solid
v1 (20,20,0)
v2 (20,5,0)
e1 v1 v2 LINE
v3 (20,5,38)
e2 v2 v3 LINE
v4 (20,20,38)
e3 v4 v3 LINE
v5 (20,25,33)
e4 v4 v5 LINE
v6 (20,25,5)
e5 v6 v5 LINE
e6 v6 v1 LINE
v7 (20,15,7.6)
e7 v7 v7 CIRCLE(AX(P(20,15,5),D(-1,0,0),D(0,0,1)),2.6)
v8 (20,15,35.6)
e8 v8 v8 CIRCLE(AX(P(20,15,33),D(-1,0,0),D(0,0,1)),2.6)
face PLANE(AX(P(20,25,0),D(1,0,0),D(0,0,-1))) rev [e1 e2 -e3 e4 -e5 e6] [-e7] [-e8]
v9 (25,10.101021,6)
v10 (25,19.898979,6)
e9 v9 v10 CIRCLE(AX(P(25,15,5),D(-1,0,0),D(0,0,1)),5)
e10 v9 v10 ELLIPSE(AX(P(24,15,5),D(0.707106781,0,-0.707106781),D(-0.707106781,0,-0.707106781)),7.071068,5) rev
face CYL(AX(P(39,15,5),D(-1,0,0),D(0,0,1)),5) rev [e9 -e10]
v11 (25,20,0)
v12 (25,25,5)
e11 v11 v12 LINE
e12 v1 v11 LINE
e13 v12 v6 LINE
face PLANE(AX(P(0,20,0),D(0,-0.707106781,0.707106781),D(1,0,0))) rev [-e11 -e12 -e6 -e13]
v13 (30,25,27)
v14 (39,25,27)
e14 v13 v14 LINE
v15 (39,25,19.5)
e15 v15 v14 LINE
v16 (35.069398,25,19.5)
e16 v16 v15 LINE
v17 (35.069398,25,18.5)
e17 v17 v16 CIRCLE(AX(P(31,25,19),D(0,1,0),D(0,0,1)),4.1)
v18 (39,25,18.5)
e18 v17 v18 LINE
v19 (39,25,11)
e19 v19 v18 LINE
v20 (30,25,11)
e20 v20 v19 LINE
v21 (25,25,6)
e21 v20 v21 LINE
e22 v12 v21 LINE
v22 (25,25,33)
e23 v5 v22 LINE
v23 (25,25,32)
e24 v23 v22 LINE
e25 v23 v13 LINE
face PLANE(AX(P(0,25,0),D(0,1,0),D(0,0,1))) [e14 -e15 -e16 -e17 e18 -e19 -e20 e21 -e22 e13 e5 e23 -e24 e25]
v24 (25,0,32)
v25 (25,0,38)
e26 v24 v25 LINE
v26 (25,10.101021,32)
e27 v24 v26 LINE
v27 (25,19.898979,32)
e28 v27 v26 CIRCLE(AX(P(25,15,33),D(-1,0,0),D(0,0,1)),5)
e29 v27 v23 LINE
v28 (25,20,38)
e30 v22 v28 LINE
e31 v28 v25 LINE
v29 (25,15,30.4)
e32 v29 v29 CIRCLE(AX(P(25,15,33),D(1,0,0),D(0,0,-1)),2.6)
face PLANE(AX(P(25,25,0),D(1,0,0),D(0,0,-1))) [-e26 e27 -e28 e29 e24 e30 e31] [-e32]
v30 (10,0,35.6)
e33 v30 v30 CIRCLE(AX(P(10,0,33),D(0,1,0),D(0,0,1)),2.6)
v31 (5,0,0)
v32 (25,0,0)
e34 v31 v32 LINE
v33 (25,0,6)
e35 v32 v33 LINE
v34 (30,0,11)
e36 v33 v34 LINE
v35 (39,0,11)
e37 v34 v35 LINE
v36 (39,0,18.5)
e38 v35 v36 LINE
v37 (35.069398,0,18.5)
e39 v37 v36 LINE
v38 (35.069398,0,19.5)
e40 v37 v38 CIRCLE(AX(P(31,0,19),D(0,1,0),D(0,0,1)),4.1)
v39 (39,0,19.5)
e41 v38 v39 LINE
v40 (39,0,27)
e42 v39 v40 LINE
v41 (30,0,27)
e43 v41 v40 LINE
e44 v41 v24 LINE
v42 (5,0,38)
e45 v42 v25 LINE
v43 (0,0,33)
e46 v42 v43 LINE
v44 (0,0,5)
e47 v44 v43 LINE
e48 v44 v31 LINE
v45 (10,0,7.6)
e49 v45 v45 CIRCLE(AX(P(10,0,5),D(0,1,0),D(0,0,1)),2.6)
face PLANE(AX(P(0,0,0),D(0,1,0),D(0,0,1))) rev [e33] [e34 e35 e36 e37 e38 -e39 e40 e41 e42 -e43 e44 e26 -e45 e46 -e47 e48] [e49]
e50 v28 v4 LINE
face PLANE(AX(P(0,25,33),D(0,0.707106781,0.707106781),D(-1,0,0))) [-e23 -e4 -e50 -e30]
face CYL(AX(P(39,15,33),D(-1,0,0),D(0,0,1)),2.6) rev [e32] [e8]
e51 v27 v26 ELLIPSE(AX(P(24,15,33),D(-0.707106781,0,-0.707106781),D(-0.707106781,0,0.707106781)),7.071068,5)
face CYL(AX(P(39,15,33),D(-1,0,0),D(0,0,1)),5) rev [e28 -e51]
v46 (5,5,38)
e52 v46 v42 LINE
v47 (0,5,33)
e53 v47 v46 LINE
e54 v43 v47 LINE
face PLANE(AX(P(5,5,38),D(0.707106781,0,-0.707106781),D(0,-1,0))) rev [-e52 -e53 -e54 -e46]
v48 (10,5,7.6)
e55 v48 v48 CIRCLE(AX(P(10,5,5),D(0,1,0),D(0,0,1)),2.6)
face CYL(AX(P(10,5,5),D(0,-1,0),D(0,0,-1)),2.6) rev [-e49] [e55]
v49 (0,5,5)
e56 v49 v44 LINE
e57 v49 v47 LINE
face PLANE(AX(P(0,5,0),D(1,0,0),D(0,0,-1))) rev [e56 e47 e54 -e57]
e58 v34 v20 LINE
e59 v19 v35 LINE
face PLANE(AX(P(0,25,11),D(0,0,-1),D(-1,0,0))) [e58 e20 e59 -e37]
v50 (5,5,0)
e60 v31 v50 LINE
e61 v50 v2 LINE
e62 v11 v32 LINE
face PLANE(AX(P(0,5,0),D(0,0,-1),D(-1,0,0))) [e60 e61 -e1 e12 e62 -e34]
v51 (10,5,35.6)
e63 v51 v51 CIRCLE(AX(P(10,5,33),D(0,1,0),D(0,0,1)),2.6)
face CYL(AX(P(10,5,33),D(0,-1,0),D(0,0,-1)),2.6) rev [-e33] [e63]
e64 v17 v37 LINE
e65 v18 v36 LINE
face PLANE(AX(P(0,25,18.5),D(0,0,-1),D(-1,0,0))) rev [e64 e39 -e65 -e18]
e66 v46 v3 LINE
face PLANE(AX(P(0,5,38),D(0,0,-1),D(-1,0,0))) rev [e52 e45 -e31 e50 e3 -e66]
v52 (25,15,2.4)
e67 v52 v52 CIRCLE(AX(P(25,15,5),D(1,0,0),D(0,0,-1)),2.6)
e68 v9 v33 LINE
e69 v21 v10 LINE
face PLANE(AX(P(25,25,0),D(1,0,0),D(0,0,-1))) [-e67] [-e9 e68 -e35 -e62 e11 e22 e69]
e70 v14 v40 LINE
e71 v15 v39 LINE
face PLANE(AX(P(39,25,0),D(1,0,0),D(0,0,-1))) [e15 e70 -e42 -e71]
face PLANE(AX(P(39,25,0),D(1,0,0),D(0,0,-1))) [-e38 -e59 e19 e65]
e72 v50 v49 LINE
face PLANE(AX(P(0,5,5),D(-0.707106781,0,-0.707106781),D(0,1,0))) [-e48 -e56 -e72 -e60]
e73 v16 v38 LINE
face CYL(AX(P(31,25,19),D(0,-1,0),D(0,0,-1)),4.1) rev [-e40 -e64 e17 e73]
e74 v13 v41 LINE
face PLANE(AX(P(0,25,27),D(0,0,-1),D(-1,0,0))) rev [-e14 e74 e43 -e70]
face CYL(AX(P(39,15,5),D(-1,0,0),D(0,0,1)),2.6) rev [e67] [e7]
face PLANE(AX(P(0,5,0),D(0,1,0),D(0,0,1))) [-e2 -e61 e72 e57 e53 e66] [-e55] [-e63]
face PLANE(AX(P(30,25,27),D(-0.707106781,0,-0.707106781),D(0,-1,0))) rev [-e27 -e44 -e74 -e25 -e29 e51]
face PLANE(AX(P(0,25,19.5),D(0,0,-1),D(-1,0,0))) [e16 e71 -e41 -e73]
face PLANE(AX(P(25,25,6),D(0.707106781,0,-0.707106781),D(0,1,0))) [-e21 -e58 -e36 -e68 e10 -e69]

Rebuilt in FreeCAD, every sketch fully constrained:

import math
import FreeCAD as App
import Part
import Sketcher


def edges_at(feature, points):
    """Names of the edges that pass closest to the given points."""
    edges = feature.Shape.Edges
    near = lambda p: min(range(len(edges)), key=lambda i: edges[i].distToShape(Part.Vertex(*p))[0])
    return sorted({f"Edge{near(p) + 1}" for p in points})


def add_polygon(sketch, points):
    """Adds a closed chain of lines whose ends are joined by coincident constraints."""
    first, n = sketch.GeometryCount, len(points)
    for a, b in zip(points, points[1:] + points[:1]):
        sketch.addGeometry(Part.LineSegment(App.Vector(*a, 0), App.Vector(*b, 0)), False)
    for i in range(n):
        sketch.addConstraint(Sketcher.Constraint("Coincident", first + i, 2, first + (i + 1) % n, 1))

doc = App.newDocument("Part")
params = doc.addObject("Spreadsheet::Sheet", "Params")
for row, (alias, value) in enumerate([
    ("sketch1_diameter", "5.2 mm"),
    ("sketch1_width", "20 mm"),
    ("sketch1_height", "38 mm"),
    ("pad1_length", "5 mm"),
    ("sketch2_radius", "4.1 mm"),
    ("sketch2_width", "5 mm"),
    ("sketch2_width2", "14 mm"),
    ("sketch2_height", "38 mm"),
    ("sketch2_height2", "11 mm"),
    ("pad2_length", "25 mm"),
    ("chamfer_size", "5 mm"),
    ("sketch3_diameter", "5.2 mm"),
    ("sketch4_diameter", "10 mm"),
    ("chamfer2_size", "5 mm"),
    ("chamfer3_size", "5 mm"),
], start=1):
    params.set(f"A{row}", alias)
    params.set(f"B{row}", "=" + value)
    params.setAlias(f"B{row}", alias)

body = doc.addObject("PartDesign::Body", "Body")

sketch1 = doc.addObject("Sketcher::SketchObject", "Sketch")
body.addObject(sketch1)
sketch1.AttachmentSupport = (doc.XZ_Plane, [""])
sketch1.MapMode = "FlatFace"
add_polygon(sketch1, [(0, 0), (0, 38), (20, 38), (20, 0)])
sketch1.addGeometry(Part.Circle(App.Vector(10, 33, 0), App.Vector(0, 0, 1), 2.6), False)
sketch1.addGeometry(Part.Circle(App.Vector(10, 5, 0), App.Vector(0, 0, 1), 2.6), False)
sketch1.addConstraint([
    Sketcher.Constraint("Vertical", 0),
    Sketcher.Constraint("Horizontal", 1),
    Sketcher.Constraint("Vertical", 2),
    Sketcher.Constraint("Horizontal", 3),
    Sketcher.Constraint("Coincident", 3, 2, -1, 1),
    Sketcher.Constraint("Equal", 4, 5),
    Sketcher.Constraint("Vertical", 4, 3, 5, 3),
    Sketcher.Constraint("Diameter", 4, 5.2),
    Sketcher.Constraint("DistanceX", 1, 1, 1, 2, 20.0),
    Sketcher.Constraint("DistanceY", 0, 1, 0, 2, 38.0),
    Sketcher.Constraint("DistanceX", -1, 1, 4, 3, 10.0),
    Sketcher.Constraint("DistanceY", -1, 1, 4, 3, 33.0),
    Sketcher.Constraint("DistanceY", -1, 1, 5, 3, 5.0),
])
sketch1.setExpression("Constraints[11]", "Params.sketch1_diameter")
sketch1.setExpression("Constraints[12]", "Params.sketch1_width")
sketch1.setExpression("Constraints[13]", "Params.sketch1_height")
pad1 = doc.addObject("PartDesign::Pad", "Pad")
body.addObject(pad1)
pad1.Profile = sketch1
pad1.setExpression("Length", "Params.pad1_length")
pad1.Reversed = True

sketch2 = doc.addObject("Sketcher::SketchObject", "Sketch001")
body.addObject(sketch2)
sketch2.AttachmentSupport = (doc.XZ_Plane, [""])
sketch2.MapMode = "FlatFace"
sketch2.addGeometry([
    Part.LineSegment(App.Vector(20, 0, 0), App.Vector(20, 38, 0)),
    Part.LineSegment(App.Vector(20, 38, 0), App.Vector(25, 38, 0)),
    Part.LineSegment(App.Vector(25, 38, 0), App.Vector(25, 27, 0)),
    Part.LineSegment(App.Vector(25, 27, 0), App.Vector(39, 27, 0)),
    Part.LineSegment(App.Vector(39, 27, 0), App.Vector(39, 19.5, 0)),
    Part.LineSegment(App.Vector(39, 19.5, 0), App.Vector(35.1, 19.5, 0)),
    Part.ArcOfCircle(Part.Circle(App.Vector(31, 19, 0), App.Vector(0, 0, 1), 4.1), math.radians(7), math.radians(353)),
    Part.LineSegment(App.Vector(35.1, 18.5, 0), App.Vector(39, 18.5, 0)),
    Part.LineSegment(App.Vector(39, 18.5, 0), App.Vector(39, 11, 0)),
    Part.LineSegment(App.Vector(39, 11, 0), App.Vector(25, 11, 0)),
    Part.LineSegment(App.Vector(25, 11, 0), App.Vector(25, 0, 0)),
    Part.LineSegment(App.Vector(25, 0, 0), App.Vector(20, 0, 0)),
], False)
sketch2.addConstraint([
    Sketcher.Constraint("Coincident", 0, 2, 1, 1),
    Sketcher.Constraint("Coincident", 1, 2, 2, 1),
    Sketcher.Constraint("Coincident", 2, 2, 3, 1),
    Sketcher.Constraint("Coincident", 3, 2, 4, 1),
    Sketcher.Constraint("Coincident", 4, 2, 5, 1),
    Sketcher.Constraint("Coincident", 5, 2, 6, 1),
    Sketcher.Constraint("Coincident", 6, 2, 7, 1),
    Sketcher.Constraint("Coincident", 7, 2, 8, 1),
    Sketcher.Constraint("Coincident", 8, 2, 9, 1),
    Sketcher.Constraint("Coincident", 9, 2, 10, 1),
    Sketcher.Constraint("Coincident", 10, 2, 11, 1),
    Sketcher.Constraint("Coincident", 11, 2, 0, 1),
    Sketcher.Constraint("Vertical", 0),
    Sketcher.Constraint("Horizontal", 1),
    Sketcher.Constraint("Vertical", 2),
    Sketcher.Constraint("Horizontal", 3),
    Sketcher.Constraint("Vertical", 4),
    Sketcher.Constraint("Horizontal", 5),
    Sketcher.Constraint("Horizontal", 7),
    Sketcher.Constraint("Vertical", 8),
    Sketcher.Constraint("Horizontal", 9),
    Sketcher.Constraint("Vertical", 10),
    Sketcher.Constraint("Horizontal", 11),
    Sketcher.Constraint("PointOnObject", 10, 2, -1),
    Sketcher.Constraint("Vertical", 5, 2, 6, 2),
    Sketcher.Constraint("Vertical", 4, 2, 7, 2),
    Sketcher.Constraint("Vertical", 2, 2, 9, 2),
    Sketcher.Constraint("Equal", 4, 8),
    Sketcher.Constraint("Equal", 2, 10),
    Sketcher.Constraint("Radius", 6, 4.1),
    Sketcher.Constraint("DistanceX", 1, 1, 1, 2, 5.0),
    Sketcher.Constraint("DistanceX", 3, 1, 3, 2, 14.0),
    Sketcher.Constraint("DistanceY", 0, 1, 0, 2, 38.0),
    Sketcher.Constraint("DistanceY", 2, 2, 2, 1, 11.0),
    Sketcher.Constraint("DistanceY", 4, 2, 4, 1, 7.5),
    Sketcher.Constraint("DistanceX", -1, 1, 6, 3, 31.0),
    Sketcher.Constraint("DistanceX", -1, 1, 0, 2, 20.0),
])
sketch2.setExpression("Constraints[29]", "Params.sketch2_radius")
sketch2.setExpression("Constraints[30]", "Params.sketch2_width")
sketch2.setExpression("Constraints[31]", "Params.sketch2_width2")
sketch2.setExpression("Constraints[32]", "Params.sketch2_height")
sketch2.setExpression("Constraints[33]", "Params.sketch2_height2")
pad2 = doc.addObject("PartDesign::Pad", "Pad001")
body.addObject(pad2)
pad2.Profile = sketch2
pad2.setExpression("Length", "Params.pad2_length")
pad2.Reversed = True
doc.recompute()

chamfer = doc.addObject("PartDesign::Chamfer", "Chamfer")
body.addObject(chamfer)
chamfer.Base = (pad2, edges_at(pad2, [(25, 12.5, 11), (25, 12.5, 27)]))
chamfer.setExpression("Size", "Params.chamfer_size")

sketch3 = doc.addObject("Sketcher::SketchObject", "Sketch002")
body.addObject(sketch3)
sketch3.AttachmentSupport = (doc.YZ_Plane, [""])
sketch3.MapMode = "FlatFace"
sketch3.AttachmentOffset = App.Placement(App.Vector(0, 0, 20), App.Rotation())
sketch3.addGeometry([
    Part.Circle(App.Vector(15, 5, 0), App.Vector(0, 0, 1), 2.6),
    Part.Circle(App.Vector(15, 33, 0), App.Vector(0, 0, 1), 2.6),
], False)
sketch3.addConstraint([
    Sketcher.Constraint("Equal", 0, 1),
    Sketcher.Constraint("Vertical", 0, 3, 1, 3),
    Sketcher.Constraint("Diameter", 0, 5.2),
    Sketcher.Constraint("DistanceX", -1, 1, 0, 3, 15.0),
    Sketcher.Constraint("DistanceY", -1, 1, 0, 3, 5.0),
    Sketcher.Constraint("DistanceY", -1, 1, 1, 3, 33.0),
])
sketch3.setExpression("Constraints[2]", "Params.sketch3_diameter")
pocket1 = doc.addObject("PartDesign::Pocket", "Pocket")
body.addObject(pocket1)
pocket1.Profile = sketch3
pocket1.Type = "ThroughAll"
pocket1.Reversed = True

sketch4 = doc.addObject("Sketcher::SketchObject", "Sketch003")
body.addObject(sketch4)
sketch4.AttachmentSupport = (doc.YZ_Plane, [""])
sketch4.MapMode = "FlatFace"
sketch4.AttachmentOffset = App.Placement(App.Vector(0, 0, 25), App.Rotation())
sketch4.addGeometry([
    Part.Circle(App.Vector(15, 5, 0), App.Vector(0, 0, 1), 5),
    Part.Circle(App.Vector(15, 33, 0), App.Vector(0, 0, 1), 5),
], False)
sketch4.addConstraint([
    Sketcher.Constraint("Equal", 0, 1),
    Sketcher.Constraint("Vertical", 0, 3, 1, 3),
    Sketcher.Constraint("Diameter", 0, 10.0),
    Sketcher.Constraint("DistanceX", -1, 1, 0, 3, 15.0),
    Sketcher.Constraint("DistanceY", -1, 1, 0, 3, 5.0),
    Sketcher.Constraint("DistanceY", -1, 1, 1, 3, 33.0),
])
sketch4.setExpression("Constraints[2]", "Params.sketch4_diameter")
pocket2 = doc.addObject("PartDesign::Pocket", "Pocket001")
body.addObject(pocket2)
pocket2.Profile = sketch4
pocket2.Type = "ThroughAll"
pocket2.Reversed = True
doc.recompute()

chamfer2 = doc.addObject("PartDesign::Chamfer", "Chamfer001")
body.addObject(chamfer2)
chamfer2.Base = (pocket2, edges_at(pocket2, [(22.5, 25, 0), (22.5, 25, 38)]))
chamfer2.setExpression("Size", "Params.chamfer2_size")
doc.recompute()

chamfer3 = doc.addObject("PartDesign::Chamfer", "Chamfer002")
body.addObject(chamfer3)
chamfer3.Base = (chamfer2, edges_at(chamfer2, [(0, 2.5, 38), (0, 2.5, 0)]))
chamfer3.setExpression("Size", "Params.chamfer3_size")

doc.recompute()
